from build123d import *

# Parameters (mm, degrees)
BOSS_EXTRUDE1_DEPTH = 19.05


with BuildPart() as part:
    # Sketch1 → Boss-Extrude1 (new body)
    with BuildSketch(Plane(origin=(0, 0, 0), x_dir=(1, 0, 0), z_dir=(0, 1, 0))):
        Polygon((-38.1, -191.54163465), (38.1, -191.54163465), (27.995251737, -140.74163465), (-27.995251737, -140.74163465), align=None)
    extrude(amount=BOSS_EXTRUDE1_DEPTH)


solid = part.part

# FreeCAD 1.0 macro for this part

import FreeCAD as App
import Part
import Sketcher
Q = App.Units.Quantity

doc = App.newDocument("Part")
params = doc.addObject("Spreadsheet::Sheet", "Params")
for row, (alias, value) in enumerate([
    ("sketch1_width", "3 in"),
    ("pad1_length", "0.75 in"),
], start=1):
    params.set(f"A{row}", alias)
    params.set(f"B{row}", "=" + value)
    params.setAlias(f"B{row}", alias)

body = doc.addObject("PartDesign::Body", "Body")

# Sketch on XZ plane
sketch1 = body.newObject("Sketcher::SketchObject", "Sketch")
sketch1.AttachmentSupport = (doc.getObject("XZ_Plane"), [""])
sketch1.MapMode = "FlatFace"
sketch1.addGeometry([
    Part.LineSegment(App.Vector(-38.1, 191.541635, 0), App.Vector(38.1, 191.541635, 0)),
    Part.LineSegment(App.Vector(38.1, 191.541635, 0), App.Vector(27.995252, 140.741635, 0)),
    Part.LineSegment(App.Vector(27.995252, 140.741635, 0), App.Vector(-27.995252, 140.741635, 0)),
    Part.LineSegment(App.Vector(-27.995252, 140.741635, 0), App.Vector(-38.1, 191.541635, 0)),
], False)
sketch1.addConstraint([
    Sketcher.Constraint("Coincident", 0, 2, 1, 1),
    Sketcher.Constraint("Coincident", 1, 2, 2, 1),
    Sketcher.Constraint("Coincident", 2, 2, 3, 1),
    Sketcher.Constraint("Coincident", 3, 2, 0, 1),
    Sketcher.Constraint("Horizontal", 0),
    Sketcher.Constraint("Horizontal", 2),
    Sketcher.Constraint("Equal", 1, 3),
    Sketcher.Constraint("DistanceX", 0, 1, 0, 2, Q("3 in")),
    Sketcher.Constraint("DistanceY", 1, 2, 0, 2, Q("2 in")),
    Sketcher.Constraint("DistanceX", -1, 1, 0, 2, Q("1.5 in")),
    Sketcher.Constraint("Angle", 1, Q("-101.25 deg")),
    Sketcher.Constraint("DistanceY", -1, 1, 0, 2, Q("191.541635 mm")),
])
sketch1.setExpression("Constraints[7]", "Params.sketch1_width")
pad1 = body.newObject("PartDesign::Pad", "Pad")
pad1.Profile = sketch1
pad1.setExpression("Length", "Params.pad1_length")
pad1.Reversed = True

doc.recompute()
